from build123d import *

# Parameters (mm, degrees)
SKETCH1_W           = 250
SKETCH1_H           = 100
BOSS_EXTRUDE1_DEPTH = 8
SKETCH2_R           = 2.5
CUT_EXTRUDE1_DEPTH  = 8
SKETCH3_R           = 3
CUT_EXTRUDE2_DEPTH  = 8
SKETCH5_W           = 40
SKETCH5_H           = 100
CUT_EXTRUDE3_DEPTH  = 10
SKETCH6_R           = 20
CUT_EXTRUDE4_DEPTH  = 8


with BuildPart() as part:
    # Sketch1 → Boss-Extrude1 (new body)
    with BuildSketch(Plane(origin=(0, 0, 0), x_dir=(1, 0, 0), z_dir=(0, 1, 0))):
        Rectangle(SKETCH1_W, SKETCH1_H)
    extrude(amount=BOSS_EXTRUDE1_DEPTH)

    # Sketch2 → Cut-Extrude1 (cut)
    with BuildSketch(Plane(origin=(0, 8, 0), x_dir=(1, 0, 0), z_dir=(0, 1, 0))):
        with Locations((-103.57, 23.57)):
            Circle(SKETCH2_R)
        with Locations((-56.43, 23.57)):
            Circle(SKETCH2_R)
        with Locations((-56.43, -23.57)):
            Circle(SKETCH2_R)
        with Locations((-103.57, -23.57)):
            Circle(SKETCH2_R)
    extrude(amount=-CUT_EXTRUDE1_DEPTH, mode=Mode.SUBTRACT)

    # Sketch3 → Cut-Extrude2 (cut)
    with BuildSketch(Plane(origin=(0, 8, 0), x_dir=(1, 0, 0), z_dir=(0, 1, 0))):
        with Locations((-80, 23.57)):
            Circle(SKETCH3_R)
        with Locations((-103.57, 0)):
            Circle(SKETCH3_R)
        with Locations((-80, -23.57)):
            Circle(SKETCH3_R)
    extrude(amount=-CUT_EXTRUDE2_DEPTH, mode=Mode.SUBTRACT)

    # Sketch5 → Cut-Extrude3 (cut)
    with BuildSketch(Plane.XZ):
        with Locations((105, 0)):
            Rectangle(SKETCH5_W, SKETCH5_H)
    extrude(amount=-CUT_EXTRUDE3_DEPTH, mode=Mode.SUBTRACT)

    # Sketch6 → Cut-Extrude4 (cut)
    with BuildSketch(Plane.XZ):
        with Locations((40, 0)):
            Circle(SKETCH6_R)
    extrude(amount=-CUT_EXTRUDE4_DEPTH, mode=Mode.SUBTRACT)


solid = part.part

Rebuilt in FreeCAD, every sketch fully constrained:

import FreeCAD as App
import Part
import Sketcher

V = App.Vector
Q = App.Units.Quantity


def add_polygon(sketch, points):
    """Adds a closed chain of lines whose ends are joined by coincident constraints."""
    first, n = sketch.GeometryCount, len(points)
    for a, b in zip(points, points[1:] + points[:1]):
        sketch.addGeometry(Part.LineSegment(App.Vector(*a, 0), App.Vector(*b, 0)), False)
    for i in range(n):
        sketch.addConstraint(Sketcher.Constraint("Coincident", first + i, 2, first + (i + 1) % n, 1))

doc = App.newDocument("Part")
params = doc.addObject("Spreadsheet::Sheet", "Params")
for row, (alias, value) in enumerate([
    ("sketch1_width", "250 mm"),
    ("sketch1_height", "100 mm"),
    ("pad1_length", "8 mm"),
    ("sketch2_diameter", "5 mm"),
    ("pocket1_length", "8 mm"),
    ("sketch3_diameter", "6 mm"),
    ("pocket2_length", "8 mm"),
    ("sketch4_width", "40 mm"),
    ("sketch4_height", "100 mm"),
    ("pocket3_length", "10 mm"),
    ("sketch5_diameter", "40 mm"),
    ("pocket4_length", "8 mm"),
], start=1):
    params.set(f"A{row}", alias)
    params.set(f"B{row}", "=" + value)
    params.setAlias(f"B{row}", alias)

body = doc.addObject("PartDesign::Body", "Body")

# Sketch on XZ plane
sketch1 = doc.addObject("Sketcher::SketchObject", "Sketch")
body.addObject(sketch1)
sketch1.AttachmentSupport = (doc.XZ_Plane, [""])
sketch1.MapMode = "FlatFace"
add_polygon(sketch1, [(-125, -50), (-125, 50), (125, 50), (125, -50)])  # lines 0-3
sketch1.addConstraint([
    Sketcher.Constraint("Vertical", 0),
    Sketcher.Constraint("Horizontal", 1),
    Sketcher.Constraint("Vertical", 2),
    Sketcher.Constraint("Horizontal", 3),
    Sketcher.Constraint("Symmetric", 0, 2, 2, 2, -1, 1),
    Sketcher.Constraint("DistanceX", 1, 1, 1, 2, Q("250 mm")),
    Sketcher.Constraint("DistanceY", 0, 1, 0, 2, Q("100 mm")),
])
sketch1.setExpression("Constraints[9]", "Params.sketch1_width")
sketch1.setExpression("Constraints[10]", "Params.sketch1_height")
pad1 = doc.addObject("PartDesign::Pad", "Pad")
body.addObject(pad1)
pad1.Profile = sketch1
pad1.setExpression("Length", "Params.pad1_length")
pad1.Reversed = True

# Sketch on XZ plane
sketch2 = doc.addObject("Sketcher::SketchObject", "Sketch001")
body.addObject(sketch2)
sketch2.AttachmentSupport = (doc.XZ_Plane, [""])
sketch2.MapMode = "FlatFace"
sketch2.AttachmentOffset = App.Placement(V(0, 0, -8), App.Rotation())
sketch2.addGeometry([
    Part.Circle(V(-103.6, -23.6, 0), V(0, 0, 1), 2.5),
    Part.Circle(V(-56.4, -23.6, 0), V(0, 0, 1), 2.5),
    Part.Circle(V(-56.4, 23.6, 0), V(0, 0, 1), 2.5),
    Part.Circle(V(-103.6, 23.6, 0), V(0, 0, 1), 2.5),
], False)
sketch2.addConstraint([
    Sketcher.Constraint("Equal", 0, 1),
    Sketcher.Constraint("Equal", 1, 2),
    Sketcher.Constraint("Equal", 2, 3),
    Sketcher.Constraint("Symmetric", 1, 3, 2, 3, -1),
    Sketcher.Constraint("Symmetric", 0, 3, 3, 3, -1),
    Sketcher.Constraint("Horizontal", 0, 3, 1, 3),
    Sketcher.Constraint("Diameter", 0, Q("5 mm")),
    Sketcher.Constraint("DistanceX", 0, 3, -1, 1, Q("103.57 mm")),
    Sketcher.Constraint("DistanceY", 0, 3, -1, 1, Q("23.57 mm")),
    Sketcher.Constraint("DistanceX", 1, 3, -1, 1, Q("56.43 mm")),
])
sketch2.setExpression("Constraints[6]", "Params.sketch2_diameter")
pocket1 = doc.addObject("PartDesign::Pocket", "Pocket")
body.addObject(pocket1)
pocket1.Profile = sketch2
pocket1.setExpression("Length", "Params.pocket1_length")
pocket1.Reversed = True

# Sketch on XZ plane
sketch3 = doc.addObject("Sketcher::SketchObject", "Sketch002")
body.addObject(sketch3)
sketch3.AttachmentSupport = (doc.XZ_Plane, [""])
sketch3.MapMode = "FlatFace"
sketch3.AttachmentOffset = App.Placement(V(0, 0, -8), App.Rotation())
sketch3.addGeometry([
    Part.Circle(V(-80, -23.6, 0), V(0, 0, 1), 3),
    Part.Circle(V(-103.6, 0, 0), V(0, 0, 1), 3),
    Part.Circle(V(-80, 23.6, 0), V(0, 0, 1), 3),
], False)
sketch3.addConstraint([
    Sketcher.Constraint("Equal", 0, 1),
    Sketcher.Constraint("Equal", 1, 2),
    Sketcher.Constraint("Symmetric", 0, 3, 2, 3, -1),
    Sketcher.Constraint("PointOnObject", 1, 3, -1),
    Sketcher.Constraint("Diameter", 0, Q("6 mm")),
    Sketcher.Constraint("DistanceX", 0, 3, -1, 1, Q("80 mm")),
    Sketcher.Constraint("DistanceY", 0, 3, -1, 1, Q("23.57 mm")),
    Sketcher.Constraint("DistanceX", 1, 3, -1, 1, Q("103.57 mm")),
])
sketch3.setExpression("Constraints[4]", "Params.sketch3_diameter")
pocket2 = doc.addObject("PartDesign::Pocket", "Pocket001")
body.addObject(pocket2)
pocket2.Profile = sketch3
pocket2.setExpression("Length", "Params.pocket2_length")
pocket2.Reversed = True

# Sketch on XZ plane
sketch4 = doc.addObject("Sketcher::SketchObject", "Sketch003")
body.addObject(sketch4)
sketch4.AttachmentSupport = (doc.XZ_Plane, [""])
sketch4.MapMode = "FlatFace"
add_polygon(sketch4, [(85, 50), (85, -50), (125, -50), (125, 50)])  # lines 0-3
sketch4.addConstraint([
    Sketcher.Constraint("Vertical", 0),
    Sketcher.Constraint("Horizontal", 1),
    Sketcher.Constraint("Vertical", 2),
    Sketcher.Constraint("Horizontal", 3),
    Sketcher.Constraint("DistanceX", 1, 1, 1, 2, Q("40 mm")),
    Sketcher.Constraint("DistanceY", 0, 2, 0, 1, Q("100 mm")),
    Sketcher.Constraint("DistanceX", -1, 1, 0, 2, Q("85 mm")),
    Sketcher.Constraint("DistanceY", 0, 2, -1, 1, Q("50 mm")),
])
sketch4.setExpression("Constraints[8]", "Params.sketch4_width")
sketch4.setExpression("Constraints[9]", "Params.sketch4_height")
pocket3 = doc.addObject("PartDesign::Pocket", "Pocket002")
body.addObject(pocket3)
pocket3.Profile = sketch4
pocket3.setExpression("Length", "Params.pocket3_length")

# Sketch on XZ plane
sketch5 = doc.addObject("Sketcher::SketchObject", "Sketch004")
body.addObject(sketch5)
sketch5.AttachmentSupport = (doc.XZ_Plane, [""])
sketch5.MapMode = "FlatFace"
sketch5.addGeometry(Part.Circle(V(40, 0, 0), V(0, 0, 1), 20), False)
sketch5.addConstraint([
    Sketcher.Constraint("PointOnObject", 0, 3, -1),
    Sketcher.Constraint("Diameter", 0, Q("40 mm")),
    Sketcher.Constraint("DistanceX", -1, 1, 0, 3, Q("40 mm")),
])
sketch5.setExpression("Constraints[1]", "Params.sketch5_diameter")
pocket4 = doc.addObject("PartDesign::Pocket", "Pocket003")
body.addObject(pocket4)
pocket4.Profile = sketch5
pocket4.setExpression("Length", "Params.pocket4_length")

doc.recompute()
